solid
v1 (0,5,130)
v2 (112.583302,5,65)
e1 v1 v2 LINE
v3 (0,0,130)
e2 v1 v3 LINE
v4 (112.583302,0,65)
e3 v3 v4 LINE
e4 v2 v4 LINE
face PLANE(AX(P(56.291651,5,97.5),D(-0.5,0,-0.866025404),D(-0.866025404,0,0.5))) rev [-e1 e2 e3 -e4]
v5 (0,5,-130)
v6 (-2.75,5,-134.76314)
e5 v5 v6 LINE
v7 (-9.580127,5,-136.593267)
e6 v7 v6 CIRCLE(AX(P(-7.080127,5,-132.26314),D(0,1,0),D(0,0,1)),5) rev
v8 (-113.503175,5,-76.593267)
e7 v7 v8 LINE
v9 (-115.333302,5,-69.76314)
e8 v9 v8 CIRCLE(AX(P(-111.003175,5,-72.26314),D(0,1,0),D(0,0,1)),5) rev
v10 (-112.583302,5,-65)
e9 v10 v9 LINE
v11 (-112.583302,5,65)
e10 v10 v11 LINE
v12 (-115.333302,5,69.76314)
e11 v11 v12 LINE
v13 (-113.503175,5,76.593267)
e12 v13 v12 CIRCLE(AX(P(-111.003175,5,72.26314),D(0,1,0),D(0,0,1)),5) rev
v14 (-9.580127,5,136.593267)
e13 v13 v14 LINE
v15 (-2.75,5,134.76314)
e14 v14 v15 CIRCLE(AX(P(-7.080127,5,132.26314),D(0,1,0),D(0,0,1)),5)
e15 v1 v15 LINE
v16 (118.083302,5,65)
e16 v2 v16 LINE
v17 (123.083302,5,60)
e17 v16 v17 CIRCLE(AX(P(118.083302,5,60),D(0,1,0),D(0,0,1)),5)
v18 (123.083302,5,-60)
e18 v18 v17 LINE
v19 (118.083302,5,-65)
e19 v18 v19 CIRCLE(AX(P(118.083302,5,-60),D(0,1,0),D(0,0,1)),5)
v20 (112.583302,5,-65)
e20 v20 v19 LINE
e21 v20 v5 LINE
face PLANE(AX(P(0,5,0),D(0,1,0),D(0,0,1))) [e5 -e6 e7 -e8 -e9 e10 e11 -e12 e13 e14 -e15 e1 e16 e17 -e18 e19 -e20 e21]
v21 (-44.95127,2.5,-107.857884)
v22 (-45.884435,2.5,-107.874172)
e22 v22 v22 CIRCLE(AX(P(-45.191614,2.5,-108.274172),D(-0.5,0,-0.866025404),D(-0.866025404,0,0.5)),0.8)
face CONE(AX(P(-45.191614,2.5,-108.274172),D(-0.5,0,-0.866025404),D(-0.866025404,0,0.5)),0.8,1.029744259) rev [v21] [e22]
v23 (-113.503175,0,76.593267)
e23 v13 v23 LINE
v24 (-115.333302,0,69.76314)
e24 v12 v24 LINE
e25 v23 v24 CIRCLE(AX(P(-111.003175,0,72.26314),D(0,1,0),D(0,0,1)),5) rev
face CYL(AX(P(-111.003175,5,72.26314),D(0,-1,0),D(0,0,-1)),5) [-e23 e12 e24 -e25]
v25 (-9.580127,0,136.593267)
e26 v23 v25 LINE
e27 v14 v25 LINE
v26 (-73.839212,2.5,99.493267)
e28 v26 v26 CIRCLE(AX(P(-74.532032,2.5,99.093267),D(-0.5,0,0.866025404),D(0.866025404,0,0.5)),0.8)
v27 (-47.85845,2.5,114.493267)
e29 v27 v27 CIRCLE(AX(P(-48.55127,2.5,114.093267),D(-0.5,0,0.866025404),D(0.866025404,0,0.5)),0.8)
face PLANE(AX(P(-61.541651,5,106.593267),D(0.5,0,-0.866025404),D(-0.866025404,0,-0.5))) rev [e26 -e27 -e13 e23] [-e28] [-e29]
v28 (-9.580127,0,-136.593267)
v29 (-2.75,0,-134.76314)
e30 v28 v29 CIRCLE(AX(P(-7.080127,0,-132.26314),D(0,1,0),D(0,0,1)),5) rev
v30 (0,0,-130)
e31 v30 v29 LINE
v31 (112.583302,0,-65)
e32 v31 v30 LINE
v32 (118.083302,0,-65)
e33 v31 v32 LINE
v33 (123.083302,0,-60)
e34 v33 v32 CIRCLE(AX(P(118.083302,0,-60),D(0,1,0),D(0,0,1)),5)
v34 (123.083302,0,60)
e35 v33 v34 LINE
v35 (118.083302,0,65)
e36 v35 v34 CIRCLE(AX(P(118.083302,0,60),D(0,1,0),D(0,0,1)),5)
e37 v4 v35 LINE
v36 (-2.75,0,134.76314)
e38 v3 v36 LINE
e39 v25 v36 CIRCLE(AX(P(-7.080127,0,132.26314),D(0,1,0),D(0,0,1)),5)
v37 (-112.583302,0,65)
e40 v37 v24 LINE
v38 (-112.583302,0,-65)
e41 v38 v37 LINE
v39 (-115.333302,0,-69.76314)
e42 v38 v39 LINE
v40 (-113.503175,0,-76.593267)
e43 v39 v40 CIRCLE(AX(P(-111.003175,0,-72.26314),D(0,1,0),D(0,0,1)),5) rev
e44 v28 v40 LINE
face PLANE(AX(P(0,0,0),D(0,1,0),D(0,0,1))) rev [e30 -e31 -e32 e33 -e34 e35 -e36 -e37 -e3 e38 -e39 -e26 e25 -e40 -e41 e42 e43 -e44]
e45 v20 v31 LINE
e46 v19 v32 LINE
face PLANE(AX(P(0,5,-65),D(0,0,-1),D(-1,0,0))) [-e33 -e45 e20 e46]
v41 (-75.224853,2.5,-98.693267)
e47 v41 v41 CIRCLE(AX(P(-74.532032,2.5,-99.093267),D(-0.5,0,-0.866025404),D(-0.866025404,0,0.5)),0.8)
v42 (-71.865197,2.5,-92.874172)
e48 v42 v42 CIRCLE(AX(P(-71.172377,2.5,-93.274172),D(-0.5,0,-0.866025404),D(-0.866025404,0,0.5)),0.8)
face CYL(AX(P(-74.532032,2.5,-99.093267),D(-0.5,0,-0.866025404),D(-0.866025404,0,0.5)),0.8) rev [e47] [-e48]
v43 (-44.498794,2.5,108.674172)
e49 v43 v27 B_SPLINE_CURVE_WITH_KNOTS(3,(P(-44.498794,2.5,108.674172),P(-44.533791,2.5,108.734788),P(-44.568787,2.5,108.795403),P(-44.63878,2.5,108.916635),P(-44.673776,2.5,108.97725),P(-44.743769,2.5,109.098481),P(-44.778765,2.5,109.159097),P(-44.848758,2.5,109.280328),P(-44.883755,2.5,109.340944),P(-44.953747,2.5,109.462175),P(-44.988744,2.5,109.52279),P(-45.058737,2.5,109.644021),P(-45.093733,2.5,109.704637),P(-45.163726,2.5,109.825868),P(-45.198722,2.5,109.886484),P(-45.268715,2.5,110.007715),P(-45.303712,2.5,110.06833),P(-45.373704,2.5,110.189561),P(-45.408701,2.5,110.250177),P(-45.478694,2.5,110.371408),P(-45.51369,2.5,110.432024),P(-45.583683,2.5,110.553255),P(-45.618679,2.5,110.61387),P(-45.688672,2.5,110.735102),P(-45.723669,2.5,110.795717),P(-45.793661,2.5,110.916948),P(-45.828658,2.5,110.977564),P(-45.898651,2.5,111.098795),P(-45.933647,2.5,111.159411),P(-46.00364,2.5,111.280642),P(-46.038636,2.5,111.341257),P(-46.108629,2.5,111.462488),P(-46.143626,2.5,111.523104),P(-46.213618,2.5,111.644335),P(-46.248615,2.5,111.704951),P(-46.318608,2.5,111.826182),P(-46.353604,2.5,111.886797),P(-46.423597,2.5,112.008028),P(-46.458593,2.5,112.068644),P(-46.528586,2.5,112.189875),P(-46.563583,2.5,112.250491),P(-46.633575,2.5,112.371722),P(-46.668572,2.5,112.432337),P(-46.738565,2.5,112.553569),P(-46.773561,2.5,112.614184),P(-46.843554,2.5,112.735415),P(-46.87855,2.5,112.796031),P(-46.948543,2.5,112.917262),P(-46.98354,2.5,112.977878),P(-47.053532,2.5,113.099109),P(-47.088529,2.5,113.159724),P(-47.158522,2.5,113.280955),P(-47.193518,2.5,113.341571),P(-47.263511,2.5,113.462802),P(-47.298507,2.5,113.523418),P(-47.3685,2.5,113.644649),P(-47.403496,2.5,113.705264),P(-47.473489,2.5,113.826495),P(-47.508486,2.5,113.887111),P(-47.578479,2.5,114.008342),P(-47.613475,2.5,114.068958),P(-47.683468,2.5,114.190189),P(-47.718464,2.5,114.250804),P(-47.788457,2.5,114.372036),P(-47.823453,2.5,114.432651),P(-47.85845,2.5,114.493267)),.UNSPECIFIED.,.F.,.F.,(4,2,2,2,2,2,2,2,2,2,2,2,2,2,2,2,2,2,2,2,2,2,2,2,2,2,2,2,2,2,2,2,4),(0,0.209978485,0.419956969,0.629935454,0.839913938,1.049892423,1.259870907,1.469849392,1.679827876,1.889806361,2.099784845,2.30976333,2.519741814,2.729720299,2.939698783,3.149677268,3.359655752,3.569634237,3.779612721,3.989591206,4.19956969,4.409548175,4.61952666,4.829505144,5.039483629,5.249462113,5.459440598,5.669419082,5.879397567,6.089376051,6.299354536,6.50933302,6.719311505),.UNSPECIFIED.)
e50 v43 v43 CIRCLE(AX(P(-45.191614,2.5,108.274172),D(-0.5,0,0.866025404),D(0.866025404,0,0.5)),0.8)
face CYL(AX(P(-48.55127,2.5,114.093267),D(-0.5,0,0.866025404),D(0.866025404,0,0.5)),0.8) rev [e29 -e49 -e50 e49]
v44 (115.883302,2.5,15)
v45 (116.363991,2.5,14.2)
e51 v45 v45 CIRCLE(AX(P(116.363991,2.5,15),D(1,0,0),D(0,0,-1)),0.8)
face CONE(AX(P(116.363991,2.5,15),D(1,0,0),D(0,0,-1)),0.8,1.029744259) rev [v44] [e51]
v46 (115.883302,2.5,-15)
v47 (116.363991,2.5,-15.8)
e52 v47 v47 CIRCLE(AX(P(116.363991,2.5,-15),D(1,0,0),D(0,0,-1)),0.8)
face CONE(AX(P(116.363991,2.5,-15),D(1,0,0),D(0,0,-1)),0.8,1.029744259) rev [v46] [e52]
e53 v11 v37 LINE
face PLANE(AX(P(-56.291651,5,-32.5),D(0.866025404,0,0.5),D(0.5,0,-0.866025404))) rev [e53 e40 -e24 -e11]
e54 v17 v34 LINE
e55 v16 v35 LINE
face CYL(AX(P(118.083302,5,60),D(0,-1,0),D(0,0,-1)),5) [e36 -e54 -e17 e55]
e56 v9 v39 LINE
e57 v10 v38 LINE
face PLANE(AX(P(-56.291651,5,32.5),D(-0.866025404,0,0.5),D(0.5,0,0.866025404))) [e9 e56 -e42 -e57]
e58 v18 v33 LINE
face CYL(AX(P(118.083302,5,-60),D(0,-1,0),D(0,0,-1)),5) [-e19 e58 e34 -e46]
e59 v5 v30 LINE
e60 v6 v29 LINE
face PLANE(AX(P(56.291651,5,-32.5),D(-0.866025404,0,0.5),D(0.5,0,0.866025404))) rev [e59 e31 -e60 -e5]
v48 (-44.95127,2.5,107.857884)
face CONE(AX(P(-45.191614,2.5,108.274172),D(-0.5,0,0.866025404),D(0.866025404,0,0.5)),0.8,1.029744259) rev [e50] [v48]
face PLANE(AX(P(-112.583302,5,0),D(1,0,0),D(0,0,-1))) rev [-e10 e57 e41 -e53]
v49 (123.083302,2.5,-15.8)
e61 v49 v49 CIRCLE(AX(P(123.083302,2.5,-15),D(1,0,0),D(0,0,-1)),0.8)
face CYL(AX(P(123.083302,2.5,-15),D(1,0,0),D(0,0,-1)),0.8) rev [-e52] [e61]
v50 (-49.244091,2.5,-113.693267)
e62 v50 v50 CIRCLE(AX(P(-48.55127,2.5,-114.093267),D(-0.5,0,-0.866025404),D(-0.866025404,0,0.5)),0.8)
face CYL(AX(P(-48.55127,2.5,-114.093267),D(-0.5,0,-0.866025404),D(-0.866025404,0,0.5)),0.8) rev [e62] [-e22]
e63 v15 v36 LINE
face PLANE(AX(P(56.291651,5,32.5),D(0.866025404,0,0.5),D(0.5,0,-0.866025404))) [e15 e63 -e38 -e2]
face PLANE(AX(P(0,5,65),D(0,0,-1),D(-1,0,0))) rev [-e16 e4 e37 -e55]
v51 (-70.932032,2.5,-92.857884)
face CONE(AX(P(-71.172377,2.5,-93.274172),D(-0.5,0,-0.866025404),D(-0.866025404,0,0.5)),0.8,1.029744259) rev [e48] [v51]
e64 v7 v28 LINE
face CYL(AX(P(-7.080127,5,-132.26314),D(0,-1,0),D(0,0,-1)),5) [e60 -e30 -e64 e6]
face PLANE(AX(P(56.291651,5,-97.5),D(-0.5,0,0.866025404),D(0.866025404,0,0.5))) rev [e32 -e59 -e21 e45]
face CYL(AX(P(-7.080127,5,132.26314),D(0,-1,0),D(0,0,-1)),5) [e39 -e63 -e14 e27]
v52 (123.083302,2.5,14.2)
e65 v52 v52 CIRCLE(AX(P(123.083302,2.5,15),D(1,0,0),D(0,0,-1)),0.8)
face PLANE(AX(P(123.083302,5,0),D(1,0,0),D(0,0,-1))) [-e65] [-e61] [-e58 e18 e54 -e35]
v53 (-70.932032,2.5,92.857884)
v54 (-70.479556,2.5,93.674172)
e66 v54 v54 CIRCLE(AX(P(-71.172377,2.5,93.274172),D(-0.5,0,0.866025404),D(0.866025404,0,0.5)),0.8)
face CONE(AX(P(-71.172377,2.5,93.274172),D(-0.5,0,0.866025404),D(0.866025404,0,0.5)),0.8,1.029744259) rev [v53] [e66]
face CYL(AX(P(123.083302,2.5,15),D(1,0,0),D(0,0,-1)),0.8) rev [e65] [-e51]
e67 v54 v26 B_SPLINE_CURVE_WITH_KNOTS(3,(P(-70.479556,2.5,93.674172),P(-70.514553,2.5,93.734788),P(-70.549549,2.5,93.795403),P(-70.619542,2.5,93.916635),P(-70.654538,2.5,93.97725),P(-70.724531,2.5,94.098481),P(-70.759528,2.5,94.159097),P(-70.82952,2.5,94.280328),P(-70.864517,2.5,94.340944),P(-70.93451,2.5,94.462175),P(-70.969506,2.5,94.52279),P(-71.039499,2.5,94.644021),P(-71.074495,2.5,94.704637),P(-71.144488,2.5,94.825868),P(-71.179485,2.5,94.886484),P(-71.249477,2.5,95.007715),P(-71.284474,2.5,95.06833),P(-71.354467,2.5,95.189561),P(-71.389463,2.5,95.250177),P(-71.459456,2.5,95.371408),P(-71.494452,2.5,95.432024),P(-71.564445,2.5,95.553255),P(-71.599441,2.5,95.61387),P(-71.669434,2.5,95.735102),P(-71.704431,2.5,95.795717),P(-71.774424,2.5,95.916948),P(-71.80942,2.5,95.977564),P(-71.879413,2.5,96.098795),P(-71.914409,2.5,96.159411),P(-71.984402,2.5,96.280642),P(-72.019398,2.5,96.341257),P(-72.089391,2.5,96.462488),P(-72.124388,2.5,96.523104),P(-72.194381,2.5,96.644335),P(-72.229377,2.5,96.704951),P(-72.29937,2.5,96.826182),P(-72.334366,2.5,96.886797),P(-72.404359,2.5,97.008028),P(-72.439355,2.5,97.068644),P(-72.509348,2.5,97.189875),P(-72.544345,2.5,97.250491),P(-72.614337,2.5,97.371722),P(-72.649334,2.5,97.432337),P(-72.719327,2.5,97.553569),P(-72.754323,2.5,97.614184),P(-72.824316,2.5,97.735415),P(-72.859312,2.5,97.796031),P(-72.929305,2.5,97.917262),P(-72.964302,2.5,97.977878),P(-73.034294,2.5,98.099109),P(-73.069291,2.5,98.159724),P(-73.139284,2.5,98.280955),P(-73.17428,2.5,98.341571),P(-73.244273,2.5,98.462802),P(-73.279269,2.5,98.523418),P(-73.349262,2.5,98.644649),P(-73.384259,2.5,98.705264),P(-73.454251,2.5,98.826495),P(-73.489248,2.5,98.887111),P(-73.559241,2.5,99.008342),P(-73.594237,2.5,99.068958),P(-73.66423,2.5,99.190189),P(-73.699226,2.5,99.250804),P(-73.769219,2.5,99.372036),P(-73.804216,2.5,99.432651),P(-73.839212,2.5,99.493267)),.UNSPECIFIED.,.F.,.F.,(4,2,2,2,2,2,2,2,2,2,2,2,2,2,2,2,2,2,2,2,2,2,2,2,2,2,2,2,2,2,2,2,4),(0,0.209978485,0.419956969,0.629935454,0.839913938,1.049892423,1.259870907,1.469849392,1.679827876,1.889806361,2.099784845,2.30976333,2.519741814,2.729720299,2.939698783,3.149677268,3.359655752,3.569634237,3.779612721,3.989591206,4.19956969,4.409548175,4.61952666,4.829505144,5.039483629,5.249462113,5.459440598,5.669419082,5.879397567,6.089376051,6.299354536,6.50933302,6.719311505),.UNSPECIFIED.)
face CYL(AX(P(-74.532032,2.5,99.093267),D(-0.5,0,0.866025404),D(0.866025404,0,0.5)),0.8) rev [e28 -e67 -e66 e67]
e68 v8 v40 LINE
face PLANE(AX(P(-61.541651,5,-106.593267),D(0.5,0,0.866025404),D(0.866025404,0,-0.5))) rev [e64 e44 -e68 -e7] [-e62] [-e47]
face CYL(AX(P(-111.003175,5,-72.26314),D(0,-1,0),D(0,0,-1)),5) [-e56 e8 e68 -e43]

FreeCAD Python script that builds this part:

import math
import FreeCAD as App
import Part
import Sketcher

V = App.Vector
Q = App.Units.Quantity

doc = App.newDocument("Part")
body = doc.addObject("PartDesign::Body", "Body")

# Sketch on XZ plane
sketch1 = body.newObject("Sketcher::SketchObject", "Sketch")
sketch1.AttachmentSupport = (doc.getObject("XZ_Plane"), [""])
sketch1.MapMode = "FlatFace"
sketch1.addGeometry([
    Part.LineSegment(V(-112.6, -65, 0), V(-112.6, 65, 0)),  # 0
    Part.LineSegment(V(-112.6, 65, 0), V(-115.3, 69.8, 0)),  # 1
    Part.ArcOfCircle(Part.Circle(V(-111, 72.3, 0), V(0, 0, 1), 5), math.radians(120), math.radians(210)),  # 2
    Part.LineSegment(V(-113.5, 76.6, 0), V(-9.6, 136.6, 0)),  # 3
    Part.ArcOfCircle(Part.Circle(V(-7.1, 132.3, 0), V(0, 0, 1), 5), math.radians(30), math.radians(120)),  # 4
    Part.LineSegment(V(-2.8, 134.8, 0), V(0, 130, 0)),  # 5
    Part.LineSegment(V(0, 130, 0), V(112.6, 65, 0)),  # 6
    Part.LineSegment(V(112.6, 65, 0), V(118.1, 65, 0)),  # 7
    Part.ArcOfCircle(Part.Circle(V(118.1, 60, 0), V(0, 0, 1), 5), math.radians(0), math.radians(90)),  # 8
    Part.LineSegment(V(123.1, 60, 0), V(123.1, -60, 0)),  # 9
    Part.ArcOfCircle(Part.Circle(V(118.1, -60, 0), V(0, 0, 1), 5), math.radians(-90), math.radians(0)),  # 10
    Part.LineSegment(V(118.1, -65, 0), V(112.6, -65, 0)),  # 11
    Part.LineSegment(V(112.6, -65, 0), V(0, -130, 0)),  # 12
    Part.LineSegment(V(0, -130, 0), V(-2.8, -134.8, 0)),  # 13
    Part.ArcOfCircle(Part.Circle(V(-7.1, -132.3, 0), V(0, 0, 1), 5), math.radians(-120), math.radians(-30)),  # 14
    Part.LineSegment(V(-9.6, -136.6, 0), V(-113.5, -76.6, 0)),  # 15
    Part.ArcOfCircle(Part.Circle(V(-111, -72.3, 0), V(0, 0, 1), 5), math.radians(150), math.radians(240)),  # 16
    Part.LineSegment(V(-115.3, -69.8, 0), V(-112.6, -65, 0)),  # 17
], False)
sketch1.addConstraint([
    Sketcher.Constraint("Coincident", 0, 2, 1, 1),
    Sketcher.Constraint("Tangent", 1, 2, 2, 2),
    Sketcher.Constraint("Tangent", 2, 1, 3, 1),
    Sketcher.Constraint("Tangent", 3, 2, 4, 2),
    Sketcher.Constraint("Tangent", 4, 1, 5, 1),
    Sketcher.Constraint("Coincident", 5, 2, 6, 1),
    Sketcher.Constraint("Coincident", 6, 2, 7, 1),
    Sketcher.Constraint("Tangent", 7, 2, 8, 2),
    Sketcher.Constraint("Tangent", 8, 1, 9, 1),
    Sketcher.Constraint("Tangent", 9, 2, 10, 2),
    Sketcher.Constraint("Tangent", 10, 1, 11, 1),
    Sketcher.Constraint("Coincident", 11, 2, 12, 1),
    Sketcher.Constraint("Coincident", 12, 2, 13, 1),
    Sketcher.Constraint("Tangent", 13, 2, 14, 2),
    Sketcher.Constraint("Tangent", 14, 1, 15, 1),
    Sketcher.Constraint("Tangent", 15, 2, 16, 2),
    Sketcher.Constraint("Tangent", 16, 1, 17, 1),
    Sketcher.Constraint("Coincident", 17, 2, 0, 1),
    Sketcher.Constraint("Vertical", 0),
    Sketcher.Constraint("Horizontal", 7),
    Sketcher.Constraint("Vertical", 9),
    Sketcher.Constraint("Horizontal", 11),
    Sketcher.Constraint("Equal", 2, 4),
    Sketcher.Constraint("Equal", 4, 8),
    Sketcher.Constraint("Equal", 8, 10),
    Sketcher.Constraint("Equal", 10, 14),
    Sketcher.Constraint("Equal", 14, 16),
    Sketcher.Constraint("Symmetric", 0, 2, 11, 2, -1, 1),
    Sketcher.Constraint("Symmetric", 5, 2, 12, 2, -1, 1),
    Sketcher.Constraint("Symmetric", 6, 2, 17, 2, -1, 1),
    Sketcher.Constraint("Symmetric", 4, 3, 14, 3, -1),
    Sketcher.Constraint("Symmetric", 2, 3, 16, 3, -1),
    Sketcher.Constraint("PointOnObject", 5, 2, -2),
    Sketcher.Constraint("Perpendicular", 1, 3),
    Sketcher.Constraint("Perpendicular", 3, 5),
    Sketcher.Constraint("Perpendicular", 5, 12),
    Sketcher.Constraint("Perpendicular", 6, 13),
    Sketcher.Constraint("Radius", 2, 5.0),
    Sketcher.Constraint("DistanceY", 0, 1, 0, 2, 130.0),
    Sketcher.Constraint("Angle", 1, Q("120 deg")),
    Sketcher.Constraint("Distance", 3, 120.0),
    Sketcher.Constraint("DistanceX", 7, 1, 7, 2, 5.5),
    Sketcher.Constraint("Distance", 1, 5.5),
])
pad1 = body.newObject("PartDesign::Pad", "Pad")
pad1.Profile = sketch1
pad1.Length = 5
pad1.Reversed = True

# Sketch on YZ plane
sketch2 = body.newObject("Sketcher::SketchObject", "Sketch001")
sketch2.AttachmentSupport = (doc.getObject("YZ_Plane"), [""])
sketch2.MapMode = "FlatFace"
sketch2.AttachmentOffset = App.Placement(V(0, 0, 123.083302), App.Rotation())
sketch2.addGeometry([
    Part.Circle(V(2.5, -15, 0), V(0, 0, 1), 0.8),
    Part.Circle(V(2.5, 15, 0), V(0, 0, 1), 0.8),
], False)
sketch2.addConstraint([
    Sketcher.Constraint("Equal", 0, 1),
    Sketcher.Constraint("Symmetric", 0, 3, 1, 3, -1),
    Sketcher.Constraint("Diameter", 0, 1.6),
    Sketcher.Constraint("DistanceY", 0, 3, -1, 1, 15.0),
    Sketcher.Constraint("DistanceX", -1, 1, 0, 3, 2.5),
])
doc.recompute()
hole = body.newObject("PartDesign::Hole", "Hole")
hole.Profile = sketch2
hole.ThreadType = "None"
hole.Diameter = 1.6
hole.DepthType = "Dimension"
hole.Depth = 6.719312
hole.DrillPoint = "Angled"
hole.DrillPointAngle = 118

# Sketch on an angled plane
sketch3 = body.newObject("Sketcher::SketchObject", "Sketch002")
sketch3.Placement = App.Placement(V(-61.541651, 0, 106.593267), App.Rotation(V(0.866025404, 0, 0.5), V(0, 1, 0), V(-0.5, 0, 0.866025404), "ZXY"))
sketch3.addGeometry(Part.Circle(V(15, 2.5, 0), V(0, 0, 1), 0.8), False)
sketch3.addConstraint([
    Sketcher.Constraint("Diameter", 0, 1.6),
    Sketcher.Constraint("DistanceX", -1, 1, 0, 3, 15.0),
    Sketcher.Constraint("DistanceY", -1, 1, 0, 3, 2.5),
])
doc.recompute()
hole2 = body.newObject("PartDesign::Hole", "Hole001")
hole2.Profile = sketch3
hole2.ThreadType = "None"
hole2.Diameter = 1.6
hole2.DepthType = "Dimension"
hole2.Depth = 6.719312
hole2.DrillPoint = "Angled"
hole2.DrillPointAngle = 118

# Sketch on an angled plane
sketch4 = body.newObject("Sketcher::SketchObject", "Sketch003")
sketch4.Placement = App.Placement(V(-61.541674, 0, 106.593257), App.Rotation(V(0.866025303, 0, 0.500000175), V(0, 1, 0), V(-0.500000175, 0, 0.866025303), "ZXY"))
sketch4.addGeometry(Part.Circle(V(-14.999975, 2.5, 0), V(0, 0, 1), 0.8), False)
sketch4.addConstraint([
    Sketcher.Constraint("Diameter", 0, 1.6),
    Sketcher.Constraint("DistanceY", -1, 1, 0, 3, 2.5),
    Sketcher.Constraint("DistanceX", 0, 3, -1, 1, 14.999975),
])
doc.recompute()
hole3 = body.newObject("PartDesign::Hole", "Hole002")
hole3.Profile = sketch4
hole3.ThreadType = "None"
hole3.Diameter = 1.6
hole3.DepthType = "Dimension"
hole3.Depth = 6.719312
hole3.DrillPoint = "Angled"
hole3.DrillPointAngle = 118

# Sketch on an angled plane
sketch5 = body.newObject("Sketcher::SketchObject", "Sketch004")
sketch5.Placement = App.Placement(V(-61.541674, 0, -106.593257), App.Rotation(V(-0.866025303, 0, 0.500000175), V(0, 1, 0), V(-0.500000175, 0, -0.866025303), "ZXY"))
sketch5.addGeometry(Part.Circle(V(14.999975, 2.5, 0), V(0, 0, 1), 0.8), False)
sketch5.addConstraint([
    Sketcher.Constraint("Diameter", 0, 1.6),
    Sketcher.Constraint("DistanceY", -1, 1, 0, 3, 2.5),
    Sketcher.Constraint("DistanceX", -1, 1, 0, 3, 14.999975),
])
doc.recompute()
hole4 = body.newObject("PartDesign::Hole", "Hole003")
hole4.Profile = sketch5
hole4.ThreadType = "None"
hole4.Diameter = 1.6
hole4.DepthType = "Dimension"
hole4.Depth = 6.719312
hole4.DrillPoint = "Angled"
hole4.DrillPointAngle = 118

# Sketch on an angled plane
sketch6 = body.newObject("Sketcher::SketchObject", "Sketch005")
sketch6.Placement = App.Placement(V(-61.541671, 0, -106.593252), App.Rotation(V(-0.866025303, 0, 0.500000175), V(0, 1, 0), V(-0.500000175, 0, -0.866025303), "ZXY"))
sketch6.addGeometry(Part.Circle(V(-15.000025, 2.5, 0), V(0, 0, 1), 0.8), False)
sketch6.addConstraint([
    Sketcher.Constraint("Diameter", 0, 1.6),
    Sketcher.Constraint("DistanceY", -1, 1, 0, 3, 2.5),
    Sketcher.Constraint("DistanceX", 0, 3, -1, 1, 15.000025),
])
doc.recompute()
hole5 = body.newObject("PartDesign::Hole", "Hole004")
hole5.Profile = sketch6
hole5.ThreadType = "None"
hole5.Diameter = 1.6
hole5.DepthType = "Dimension"
hole5.Depth = 6.719312
hole5.DrillPoint = "Angled"
hole5.DrillPointAngle = 118

doc.recompute()
